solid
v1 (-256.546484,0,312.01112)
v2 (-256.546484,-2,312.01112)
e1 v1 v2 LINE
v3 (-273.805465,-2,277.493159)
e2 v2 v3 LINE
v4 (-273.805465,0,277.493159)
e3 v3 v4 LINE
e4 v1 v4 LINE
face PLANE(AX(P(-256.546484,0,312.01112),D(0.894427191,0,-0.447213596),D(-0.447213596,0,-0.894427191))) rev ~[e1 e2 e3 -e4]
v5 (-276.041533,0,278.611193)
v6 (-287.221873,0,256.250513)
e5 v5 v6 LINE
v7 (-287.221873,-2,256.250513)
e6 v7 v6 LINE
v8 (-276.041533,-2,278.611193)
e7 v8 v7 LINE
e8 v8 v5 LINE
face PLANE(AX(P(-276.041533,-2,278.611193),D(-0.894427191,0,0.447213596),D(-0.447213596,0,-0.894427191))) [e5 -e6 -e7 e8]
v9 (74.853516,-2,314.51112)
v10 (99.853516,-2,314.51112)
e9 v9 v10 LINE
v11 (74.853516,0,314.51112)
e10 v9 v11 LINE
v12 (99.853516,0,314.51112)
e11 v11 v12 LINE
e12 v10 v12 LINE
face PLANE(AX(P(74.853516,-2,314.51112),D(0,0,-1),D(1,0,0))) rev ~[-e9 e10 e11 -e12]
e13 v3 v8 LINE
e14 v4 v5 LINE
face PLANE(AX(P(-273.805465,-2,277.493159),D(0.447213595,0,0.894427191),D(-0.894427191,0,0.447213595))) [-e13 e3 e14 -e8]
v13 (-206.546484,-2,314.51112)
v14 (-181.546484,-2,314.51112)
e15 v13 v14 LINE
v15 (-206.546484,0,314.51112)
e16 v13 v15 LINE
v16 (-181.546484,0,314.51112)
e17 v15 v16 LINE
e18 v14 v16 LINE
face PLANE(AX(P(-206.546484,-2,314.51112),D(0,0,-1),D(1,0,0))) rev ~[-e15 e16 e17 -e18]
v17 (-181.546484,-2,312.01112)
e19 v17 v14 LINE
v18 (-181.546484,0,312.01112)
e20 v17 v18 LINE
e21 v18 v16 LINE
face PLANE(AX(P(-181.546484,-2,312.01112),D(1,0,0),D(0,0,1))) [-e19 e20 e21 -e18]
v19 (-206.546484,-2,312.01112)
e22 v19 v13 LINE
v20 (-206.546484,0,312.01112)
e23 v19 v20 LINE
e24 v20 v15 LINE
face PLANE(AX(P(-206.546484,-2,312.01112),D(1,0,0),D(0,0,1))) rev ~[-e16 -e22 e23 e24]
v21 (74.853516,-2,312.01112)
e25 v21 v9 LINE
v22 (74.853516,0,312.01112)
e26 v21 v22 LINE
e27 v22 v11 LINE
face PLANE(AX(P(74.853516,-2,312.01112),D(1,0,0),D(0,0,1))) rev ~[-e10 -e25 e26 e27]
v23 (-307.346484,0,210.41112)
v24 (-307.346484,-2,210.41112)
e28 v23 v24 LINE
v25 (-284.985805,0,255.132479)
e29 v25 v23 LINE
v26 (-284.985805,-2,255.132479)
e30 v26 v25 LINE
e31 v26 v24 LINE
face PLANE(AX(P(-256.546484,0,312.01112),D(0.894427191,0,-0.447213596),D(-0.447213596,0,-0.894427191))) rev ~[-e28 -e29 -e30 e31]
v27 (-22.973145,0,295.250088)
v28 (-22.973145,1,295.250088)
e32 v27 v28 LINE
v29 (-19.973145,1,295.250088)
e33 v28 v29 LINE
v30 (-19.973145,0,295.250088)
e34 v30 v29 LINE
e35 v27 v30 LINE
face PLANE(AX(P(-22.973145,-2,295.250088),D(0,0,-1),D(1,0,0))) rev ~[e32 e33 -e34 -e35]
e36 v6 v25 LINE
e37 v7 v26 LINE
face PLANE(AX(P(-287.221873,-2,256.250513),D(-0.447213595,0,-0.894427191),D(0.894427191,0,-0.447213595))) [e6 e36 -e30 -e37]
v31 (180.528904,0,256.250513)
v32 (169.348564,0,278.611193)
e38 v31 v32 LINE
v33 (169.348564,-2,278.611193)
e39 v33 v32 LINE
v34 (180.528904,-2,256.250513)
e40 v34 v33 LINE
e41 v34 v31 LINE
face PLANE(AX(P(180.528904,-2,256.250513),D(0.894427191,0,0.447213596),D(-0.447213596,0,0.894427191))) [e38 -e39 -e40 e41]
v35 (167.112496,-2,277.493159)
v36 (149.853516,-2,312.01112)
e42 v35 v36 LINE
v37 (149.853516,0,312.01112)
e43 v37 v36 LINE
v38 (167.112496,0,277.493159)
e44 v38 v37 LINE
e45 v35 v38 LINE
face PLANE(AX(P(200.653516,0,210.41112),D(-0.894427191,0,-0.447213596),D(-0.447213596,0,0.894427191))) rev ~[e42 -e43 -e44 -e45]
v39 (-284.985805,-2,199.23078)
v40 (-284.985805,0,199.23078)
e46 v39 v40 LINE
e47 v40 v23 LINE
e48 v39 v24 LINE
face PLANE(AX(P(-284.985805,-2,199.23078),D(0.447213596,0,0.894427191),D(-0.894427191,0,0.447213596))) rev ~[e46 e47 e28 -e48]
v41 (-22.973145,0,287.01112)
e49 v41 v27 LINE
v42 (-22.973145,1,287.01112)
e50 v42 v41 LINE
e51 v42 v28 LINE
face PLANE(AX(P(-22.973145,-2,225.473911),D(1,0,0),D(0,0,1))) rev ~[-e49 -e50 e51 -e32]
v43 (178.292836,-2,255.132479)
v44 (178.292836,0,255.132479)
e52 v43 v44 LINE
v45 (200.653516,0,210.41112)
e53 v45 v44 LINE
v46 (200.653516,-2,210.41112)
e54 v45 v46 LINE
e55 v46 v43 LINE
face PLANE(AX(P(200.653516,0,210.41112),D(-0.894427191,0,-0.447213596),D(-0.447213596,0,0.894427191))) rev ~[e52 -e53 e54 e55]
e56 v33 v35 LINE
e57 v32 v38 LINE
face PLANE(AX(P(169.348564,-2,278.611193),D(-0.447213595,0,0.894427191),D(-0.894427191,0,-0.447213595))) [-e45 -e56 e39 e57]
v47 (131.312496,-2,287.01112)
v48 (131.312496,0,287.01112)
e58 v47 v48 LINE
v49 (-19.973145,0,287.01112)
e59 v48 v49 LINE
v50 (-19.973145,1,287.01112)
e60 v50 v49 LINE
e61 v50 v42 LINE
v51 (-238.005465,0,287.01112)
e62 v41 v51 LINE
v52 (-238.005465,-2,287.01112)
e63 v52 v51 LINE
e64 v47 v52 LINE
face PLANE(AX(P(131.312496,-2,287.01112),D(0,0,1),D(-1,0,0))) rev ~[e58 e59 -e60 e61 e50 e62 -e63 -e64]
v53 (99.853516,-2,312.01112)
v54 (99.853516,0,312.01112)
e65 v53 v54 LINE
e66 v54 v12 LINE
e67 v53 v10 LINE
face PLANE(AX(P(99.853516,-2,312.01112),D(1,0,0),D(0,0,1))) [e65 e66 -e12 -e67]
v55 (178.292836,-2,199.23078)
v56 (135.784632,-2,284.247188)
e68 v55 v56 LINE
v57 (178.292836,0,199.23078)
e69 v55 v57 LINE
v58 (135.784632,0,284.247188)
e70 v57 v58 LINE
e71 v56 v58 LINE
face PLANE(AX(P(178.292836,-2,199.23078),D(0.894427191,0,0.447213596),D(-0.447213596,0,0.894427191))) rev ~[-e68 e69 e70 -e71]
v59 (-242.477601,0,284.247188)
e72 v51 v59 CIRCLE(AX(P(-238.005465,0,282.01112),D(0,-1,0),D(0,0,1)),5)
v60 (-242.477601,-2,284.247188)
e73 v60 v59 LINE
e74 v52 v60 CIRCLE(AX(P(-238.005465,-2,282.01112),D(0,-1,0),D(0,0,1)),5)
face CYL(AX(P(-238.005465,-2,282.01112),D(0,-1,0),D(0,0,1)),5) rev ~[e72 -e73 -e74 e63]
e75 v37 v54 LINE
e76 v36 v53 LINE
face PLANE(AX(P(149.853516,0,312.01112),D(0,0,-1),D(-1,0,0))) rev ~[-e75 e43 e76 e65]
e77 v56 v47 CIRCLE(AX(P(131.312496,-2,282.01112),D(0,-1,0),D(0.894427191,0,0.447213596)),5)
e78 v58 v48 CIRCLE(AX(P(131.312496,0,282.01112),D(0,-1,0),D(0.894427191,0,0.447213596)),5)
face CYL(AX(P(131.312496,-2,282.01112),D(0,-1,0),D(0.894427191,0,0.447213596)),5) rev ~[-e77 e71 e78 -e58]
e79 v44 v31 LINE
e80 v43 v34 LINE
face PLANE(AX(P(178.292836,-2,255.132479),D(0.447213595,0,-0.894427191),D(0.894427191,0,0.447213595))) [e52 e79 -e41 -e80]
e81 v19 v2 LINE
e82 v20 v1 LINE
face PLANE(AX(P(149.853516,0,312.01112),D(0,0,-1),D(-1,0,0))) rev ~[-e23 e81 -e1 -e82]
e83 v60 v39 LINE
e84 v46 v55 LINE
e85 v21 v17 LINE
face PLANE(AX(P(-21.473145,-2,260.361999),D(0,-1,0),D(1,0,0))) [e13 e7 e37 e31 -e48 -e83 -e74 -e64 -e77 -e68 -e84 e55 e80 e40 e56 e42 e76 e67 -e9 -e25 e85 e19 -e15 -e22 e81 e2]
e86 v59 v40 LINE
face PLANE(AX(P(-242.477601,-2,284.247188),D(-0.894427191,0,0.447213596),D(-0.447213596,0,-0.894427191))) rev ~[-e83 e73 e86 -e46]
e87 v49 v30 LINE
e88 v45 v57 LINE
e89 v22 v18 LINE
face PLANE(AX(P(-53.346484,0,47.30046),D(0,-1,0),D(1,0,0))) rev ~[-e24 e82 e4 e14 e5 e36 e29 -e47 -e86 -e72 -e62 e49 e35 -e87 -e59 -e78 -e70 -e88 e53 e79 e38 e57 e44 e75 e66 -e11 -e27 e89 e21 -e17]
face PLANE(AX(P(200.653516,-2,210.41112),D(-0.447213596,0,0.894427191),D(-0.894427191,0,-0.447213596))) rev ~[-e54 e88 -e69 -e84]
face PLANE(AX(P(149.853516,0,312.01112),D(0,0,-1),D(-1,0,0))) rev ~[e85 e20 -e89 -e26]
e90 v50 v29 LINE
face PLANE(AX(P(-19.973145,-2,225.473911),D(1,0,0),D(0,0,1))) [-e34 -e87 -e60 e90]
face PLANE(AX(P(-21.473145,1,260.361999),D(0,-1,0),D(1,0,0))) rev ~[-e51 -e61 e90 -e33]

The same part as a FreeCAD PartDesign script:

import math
import FreeCAD as App
import Part
import Sketcher
from FreeCAD import Vector
Q = App.Units.Quantity


def add_polygon(sketch, points):
    """Adds a closed chain of lines whose ends are joined by coincident constraints."""
    first, n = sketch.GeometryCount, len(points)
    for a, b in zip(points, points[1:] + points[:1]):
        sketch.addGeometry(Part.LineSegment(App.Vector(*a, 0), App.Vector(*b, 0)), False)
    for i in range(n):
        sketch.addConstraint(Sketcher.Constraint("Coincident", first + i, 2, first + (i + 1) % n, 1))

doc = App.newDocument("Part")
body = doc.addObject("PartDesign::Body", "Body")

# Sketch on XZ plane
sketch1 = body.newObject("Sketcher::SketchObject", "Sketch")
sketch1.AttachmentSupport = (doc.getObject("XZ_Plane"), [""])
sketch1.MapMode = "FlatFace"
add_polygon(sketch1, [(-307, 210), (-307, -196), (201, -196), (201, 210), (150, 312), (-257, 312)])  # lines 0-5
sketch1.addConstraint(Sketcher.Constraint("Vertical", 0))
sketch1.addConstraint(Sketcher.Constraint("Horizontal", 1))
sketch1.addConstraint(Sketcher.Constraint("Vertical", 2))
sketch1.addConstraint(Sketcher.Constraint("Horizontal", 4))
sketch1.addConstraint(Sketcher.Constraint("Horizontal", 2, 2, 5, 2))
sketch1.addConstraint(Sketcher.Constraint("Equal", 4, 0))
sketch1.addConstraint(Sketcher.Constraint("Equal", 3, 5))
sketch1.addConstraint(Sketcher.Constraint("DistanceX", 1, 1, 1, 2, Q("508 mm")))
sketch1.addConstraint(Sketcher.Constraint("DistanceX", 4, 2, 4, 1, Q("406.4 mm")))
sketch1.addConstraint(Sketcher.Constraint("DistanceY", 1, 2, 3, 2, Q("508 mm")))
sketch1.addConstraint(Sketcher.Constraint("DistanceY", 0, 2, -1, 1, Q("195.98888 mm")))
sketch1.addConstraint(Sketcher.Constraint("DistanceX", 0, 2, -1, 1, Q("307.346484 mm")))
pad1 = body.newObject("PartDesign::Pad", "Pad")
pad1.Profile = sketch1
pad1.Length = 2

# Sketch on XZ plane
sketch2 = body.newObject("Sketcher::SketchObject", "Sketch001")
sketch2.AttachmentSupport = (doc.getObject("XZ_Plane"), [""])
sketch2.MapMode = "FlatFace"
sketch2.AttachmentOffset = App.Placement(Vector(0, 0, 2), App.Rotation())
sketch2.addGeometry(Part.LineSegment(Vector(99, 210, 0), Vector(-206, 210, 0)), False)
sketch2.addGeometry(Part.ArcOfCircle(Part.Circle(Vector(-206, 160, 0), Vector(0, 0, 1), 51), math.radians(90), math.radians(180)), False)
sketch2.addGeometry(Part.LineSegment(Vector(-257, 160, 0), Vector(-257, -94, 0)), False)
sketch2.addGeometry(Part.ArcOfCircle(Part.Circle(Vector(-206, -94, 0), Vector(0, 0, 1), 51), math.radians(180), math.radians(270)), False)
sketch2.addGeometry(Part.LineSegment(Vector(-206, -145, 0), Vector(99, -145, 0)), False)
sketch2.addGeometry(Part.ArcOfCircle(Part.Circle(Vector(99, -94, 0), Vector(0, 0, 1), 51), math.radians(-90), math.radians(0)), False)
sketch2.addGeometry(Part.LineSegment(Vector(150, -94, 0), Vector(150, 160, 0)), False)
sketch2.addGeometry(Part.ArcOfCircle(Part.Circle(Vector(99, 160, 0), Vector(0, 0, 1), 51), math.radians(0), math.radians(90)), False)
sketch2.addConstraint(Sketcher.Constraint("Tangent", 0, 2, 1, 1))
sketch2.addConstraint(Sketcher.Constraint("Tangent", 1, 2, 2, 1))
sketch2.addConstraint(Sketcher.Constraint("Tangent", 2, 2, 3, 1))
sketch2.addConstraint(Sketcher.Constraint("Tangent", 3, 2, 4, 1))
sketch2.addConstraint(Sketcher.Constraint("Tangent", 4, 2, 5, 1))
sketch2.addConstraint(Sketcher.Constraint("Tangent", 5, 2, 6, 1))
sketch2.addConstraint(Sketcher.Constraint("Tangent", 6, 2, 7, 1))
sketch2.addConstraint(Sketcher.Constraint("Tangent", 7, 2, 0, 1))
sketch2.addConstraint(Sketcher.Constraint("Horizontal", 0))
sketch2.addConstraint(Sketcher.Constraint("Vertical", 2))
sketch2.addConstraint(Sketcher.Constraint("Horizontal", 4))
sketch2.addConstraint(Sketcher.Constraint("Vertical", 6))
sketch2.addConstraint(Sketcher.Constraint("Equal", 1, 3))
sketch2.addConstraint(Sketcher.Constraint("Equal", 3, 5))
sketch2.addConstraint(Sketcher.Constraint("Equal", 5, 7))
sketch2.addConstraint(Sketcher.Constraint("Radius", 1, Q("50.8 mm")))
sketch2.addConstraint(Sketcher.Constraint("DistanceY", 2, 2, 2, 1, Q("254 mm")))
sketch2.addConstraint(Sketcher.Constraint("DistanceX", 0, 2, 0, 1, Q("304.8 mm")))
sketch2.addConstraint(Sketcher.Constraint("DistanceY", -1, 1, 1, 3, Q("159.61112 mm")))
sketch2.addConstraint(Sketcher.Constraint("DistanceX", 1, 3, -1, 1, Q("205.746484 mm")))
pocket1 = body.newObject("PartDesign::Pocket", "Pocket")
pocket1.Profile = sketch2
pocket1.Type = "ThroughAll"

# Sketch on XZ plane
sketch3 = body.newObject("Sketcher::SketchObject", "Sketch002")
sketch3.AttachmentSupport = (doc.getObject("XZ_Plane"), [""])
sketch3.MapMode = "FlatFace"
sketch3.AttachmentOffset = App.Placement(Vector(0, 0, 2), App.Rotation())
add_polygon(sketch3, [(-23, 295.3), (-23, 225.5), (-20, 225.5), (-20, 295.3)])  # lines 0-3
sketch3.addConstraint(Sketcher.Constraint("Vertical", 0))
sketch3.addConstraint(Sketcher.Constraint("Horizontal", 1))
sketch3.addConstraint(Sketcher.Constraint("Vertical", 2))
sketch3.addConstraint(Sketcher.Constraint("Horizontal", 3))
sketch3.addConstraint(Sketcher.Constraint("DistanceX", 1, 1, 1, 2, Q("3 mm")))
sketch3.addConstraint(Sketcher.Constraint("DistanceY", 0, 2, 0, 1, Q("69.776177 mm")))
sketch3.addConstraint(Sketcher.Constraint("DistanceY", -1, 1, 0, 2, Q("225.473911 mm")))
sketch3.addConstraint(Sketcher.Constraint("DistanceX", 0, 2, -1, 1, Q("22.973145 mm")))
pad2 = body.newObject("PartDesign::Pad", "Pad001")
pad2.Profile = sketch3
pad2.Length = 3
pad2.Reversed = True

# Sketch on XZ plane
sketch4 = body.newObject("Sketcher::SketchObject", "Sketch003")
sketch4.AttachmentSupport = (doc.getObject("XZ_Plane"), [""])
sketch4.MapMode = "FlatFace"
sketch4.AttachmentOffset = App.Placement(Vector(0, 0, 2), App.Rotation())
sketch4.addGeometry(Part.Circle(Vector(-294.8, 185, 0), Vector(0, 0, 1), 3.3), False)
sketch4.addGeometry(Part.Circle(Vector(-294.8, 7.2, 0), Vector(0, 0, 1), 3.3), False)
sketch4.addGeometry(Part.Circle(Vector(-294.8, -170.6, 0), Vector(0, 0, 1), 3.3), False)
sketch4.addGeometry(Part.Circle(Vector(188.2, -170.6, 0), Vector(0, 0, 1), 3.3), False)
sketch4.addGeometry(Part.Circle(Vector(188.2, 7.2, 0), Vector(0, 0, 1), 3.3), False)
sketch4.addGeometry(Part.Circle(Vector(188.2, 185, 0), Vector(0, 0, 1), 3.3), False)
sketch4.addConstraint(Sketcher.Constraint("Equal", 0, 1))
sketch4.addConstraint(Sketcher.Constraint("Equal", 1, 2))
sketch4.addConstraint(Sketcher.Constraint("Equal", 2, 3))
sketch4.addConstraint(Sketcher.Constraint("Equal", 3, 4))
sketch4.addConstraint(Sketcher.Constraint("Equal", 4, 5))
sketch4.addConstraint(Sketcher.Constraint("Horizontal", 2, 3, 3, 3))
sketch4.addConstraint(Sketcher.Constraint("Horizontal", 1, 3, 4, 3))
sketch4.addConstraint(Sketcher.Constraint("Horizontal", 0, 3, 5, 3))
sketch4.addConstraint(Sketcher.Constraint("Vertical", 0, 3, 1, 3))
sketch4.addConstraint(Sketcher.Constraint("Vertical", 1, 3, 2, 3))
sketch4.addConstraint(Sketcher.Constraint("Vertical", 3, 3, 4, 3))
sketch4.addConstraint(Sketcher.Constraint("Vertical", 4, 3, 5, 3))
sketch4.addConstraint(Sketcher.Constraint("Diameter", 0, Q("6.6 mm")))
sketch4.addConstraint(Sketcher.Constraint("DistanceX", 2, 3, 3, 3, Q("483 mm")))
sketch4.addConstraint(Sketcher.Constraint("DistanceY", 1, 3, 0, 3, Q("177.8 mm")))
sketch4.addConstraint(Sketcher.Constraint("DistanceY", 2, 3, 1, 3, Q("177.8 mm")))
sketch4.addConstraint(Sketcher.Constraint("DistanceY", -1, 1, 0, 3, Q("185.01112 mm")))
sketch4.addConstraint(Sketcher.Constraint("DistanceX", 0, 3, -1, 1, Q("294.846484 mm")))
doc.recompute()
hole = body.newObject("PartDesign::Hole", "Hole")
hole.Profile = sketch4
hole.ThreadType = "None"
hole.Diameter = 6.6
hole.DepthType = "ThroughAll"

# Sketch on XZ plane
sketch5 = body.newObject("Sketcher::SketchObject", "Sketch004")
sketch5.AttachmentSupport = (doc.getObject("XZ_Plane"), [""])
sketch5.MapMode = "FlatFace"
sketch5.AttachmentOffset = App.Placement(Vector(0, 0, 2), App.Rotation())
sketch5.addGeometry(Part.LineSegment(Vector(-285, 199, 0), Vector(-307, 210, 0)), False)
sketch5.addGeometry(Part.LineSegment(Vector(-307, 210, 0), Vector(-307, -196, 0)), False)
sketch5.addGeometry(Part.LineSegment(Vector(-307, -196, 0), Vector(201, -196, 0)), False)
sketch5.addGeometry(Part.LineSegment(Vector(201, -196, 0), Vector(201, 210, 0)), False)
sketch5.addGeometry(Part.LineSegment(Vector(201, 210, 0), Vector(178, 199, 0)), False)
sketch5.addGeometry(Part.LineSegment(Vector(178, 199, 0), Vector(136, 284, 0)), False)
sketch5.addGeometry(Part.ArcOfCircle(Part.Circle(Vector(131, 282, 0), Vector(0, 0, 1), 5), math.radians(27), math.radians(90)), False)
sketch5.addGeometry(Part.LineSegment(Vector(131, 287, 0), Vector(-238, 287, 0)), False)
sketch5.addGeometry(Part.ArcOfCircle(Part.Circle(Vector(-238, 282, 0), Vector(0, 0, 1), 5), math.radians(90), math.radians(153)), False)
sketch5.addGeometry(Part.LineSegment(Vector(-242, 284, 0), Vector(-285, 199, 0)), False)
sketch5.addConstraint(Sketcher.Constraint("Coincident", 0, 2, 1, 1))
sketch5.addConstraint(Sketcher.Constraint("Coincident", 1, 2, 2, 1))
sketch5.addConstraint(Sketcher.Constraint("Coincident", 2, 2, 3, 1))
sketch5.addConstraint(Sketcher.Constraint("Coincident", 3, 2, 4, 1))
sketch5.addConstraint(Sketcher.Constraint("Coincident", 4, 2, 5, 1))
sketch5.addConstraint(Sketcher.Constraint("Tangent", 5, 2, 6, 1))
sketch5.addConstraint(Sketcher.Constraint("Tangent", 6, 2, 7, 1))
sketch5.addConstraint(Sketcher.Constraint("Tangent", 7, 2, 8, 1))
sketch5.addConstraint(Sketcher.Constraint("Tangent", 8, 2, 9, 1))
sketch5.addConstraint(Sketcher.Constraint("Coincident", 9, 2, 0, 1))
sketch5.addConstraint(Sketcher.Constraint("Vertical", 1))
sketch5.addConstraint(Sketcher.Constraint("Horizontal", 2))
sketch5.addConstraint(Sketcher.Constraint("Vertical", 3))
sketch5.addConstraint(Sketcher.Constraint("Horizontal", 7))
sketch5.addConstraint(Sketcher.Constraint("Equal", 6, 8))
sketch5.addConstraint(Sketcher.Constraint("Perpendicular", 4, 5))
sketch5.addConstraint(Sketcher.Constraint("Perpendicular", 0, 9))
sketch5.addConstraint(Sketcher.Constraint("Horizontal", 0, 2, 3, 2))
sketch5.addConstraint(Sketcher.Constraint("Horizontal", 5, 2, 8, 2))
sketch5.addConstraint(Sketcher.Constraint("Horizontal", 4, 2, 9, 2))
sketch5.addConstraint(Sketcher.Constraint("Radius", 6, Q("5 mm")))
sketch5.addConstraint(Sketcher.Constraint("DistanceX", 2, 1, 2, 2, Q("508 mm")))
sketch5.addConstraint(Sketcher.Constraint("Distance", 0, Q("25 mm")))
sketch5.addConstraint(Sketcher.Constraint("DistanceY", 1, 2, 1, 1, Q("406.4 mm")))
sketch5.addConstraint(Sketcher.Constraint("DistanceY", 1, 2, 8, 3, Q("478 mm")))
sketch5.addConstraint(Sketcher.Constraint("DistanceX", 7, 2, 7, 1, Q("369.317961 mm")))
sketch5.addConstraint(Sketcher.Constraint("DistanceX", 8, 2, -1, 1, Q("242.477601 mm")))
sketch5.addConstraint(Sketcher.Constraint("DistanceY", -1, 1, 6, 3, Q("282.01112 mm")))
pocket2 = body.newObject("PartDesign::Pocket", "Pocket001")
pocket2.Profile = sketch5
pocket2.Length = 25

# Sketch on XZ plane
sketch6 = body.newObject("Sketcher::SketchObject", "Sketch005")
sketch6.AttachmentSupport = (doc.getObject("XZ_Plane"), [""])
sketch6.MapMode = "FlatFace"
sketch6.AttachmentOffset = App.Placement(Vector(0, 0, 2), App.Rotation())
add_polygon(sketch6, [(-206.5, 314.5), (-206.5, 312), (-181.5, 312), (-181.5, 314.5)])  # lines 0-3
add_polygon(sketch6, [(74.9, 314.5), (74.9, 312), (99.9, 312), (99.9, 314.5)])  # lines 4-7
add_polygon(sketch6, [(-285, 255.1), (-273.8, 277.5), (-276, 278.6), (-287.2, 256.3)])  # lines 8-11
add_polygon(sketch6, [(169.3, 278.6), (167.1, 277.5), (178.3, 255.1), (180.5, 256.3)])  # lines 12-15
sketch6.addConstraint(Sketcher.Constraint("Vertical", 0))
sketch6.addConstraint(Sketcher.Constraint("Horizontal", 1))
sketch6.addConstraint(Sketcher.Constraint("Vertical", 2))
sketch6.addConstraint(Sketcher.Constraint("Horizontal", 3))
sketch6.addConstraint(Sketcher.Constraint("Vertical", 4))
sketch6.addConstraint(Sketcher.Constraint("Horizontal", 5))
sketch6.addConstraint(Sketcher.Constraint("Vertical", 6))
sketch6.addConstraint(Sketcher.Constraint("Horizontal", 7))
sketch6.addConstraint(Sketcher.Constraint("Perpendicular", 8, 9))
sketch6.addConstraint(Sketcher.Constraint("Perpendicular", 9, 10))
sketch6.addConstraint(Sketcher.Constraint("Perpendicular", 10, 11))
sketch6.addConstraint(Sketcher.Constraint("Perpendicular", 12, 13))
sketch6.addConstraint(Sketcher.Constraint("Perpendicular", 13, 14))
sketch6.addConstraint(Sketcher.Constraint("Perpendicular", 14, 15))
sketch6.addConstraint(Sketcher.Constraint("Horizontal", 1, 2, 4, 2))
sketch6.addConstraint(Sketcher.Constraint("Horizontal", 3, 2, 6, 2))
sketch6.addConstraint(Sketcher.Constraint("Horizontal", 8, 2, 12, 2))
sketch6.addConstraint(Sketcher.Constraint("Horizontal", 11, 2, 13, 2))
sketch6.addConstraint(Sketcher.Constraint("Horizontal", 10, 2, 14, 2))
sketch6.addConstraint(Sketcher.Constraint("Equal", 3, 5))
sketch6.addConstraint(Sketcher.Constraint("Equal", 11, 12))
sketch6.addConstraint(Sketcher.Constraint("DistanceX", 1, 1, 1, 2, Q("25 mm")))
sketch6.addConstraint(Sketcher.Constraint("Distance", 8, Q("25 mm")))
sketch6.addConstraint(Sketcher.Constraint("DistanceY", 0, 2, 0, 1, Q("2.5 mm")))
sketch6.addConstraint(Sketcher.Constraint("Distance", 9, Q("2.5 mm")))
sketch6.addConstraint(Sketcher.Constraint("DistanceX", 1, 2, 4, 2, Q("256.4 mm")))
sketch6.addConstraint(Sketcher.Constraint("DistanceY", -1, 1, 0, 2, Q("312.01112 mm")))
sketch6.addConstraint(Sketcher.Constraint("DistanceY", -1, 1, 8, 2, Q("277.493159 mm")))
sketch6.addConstraint(Sketcher.Constraint("DistanceY", -1, 1, 11, 2, Q("255.132479 mm")))
sketch6.addConstraint(Sketcher.Constraint("DistanceX", 8, 2, 0, 2, Q("67.25898 mm")))
sketch6.addConstraint(Sketcher.Constraint("DistanceX", 5, 2, 12, 2, Q("67.25898 mm")))
sketch6.addConstraint(Sketcher.Constraint("DistanceX", 0, 2, -1, 1, Q("206.546484 mm")))
pad3 = body.newObject("PartDesign::Pad", "Pad002")
pad3.Profile = sketch6
pad3.Length = 2
pad3.Reversed = True

doc.recompute()
